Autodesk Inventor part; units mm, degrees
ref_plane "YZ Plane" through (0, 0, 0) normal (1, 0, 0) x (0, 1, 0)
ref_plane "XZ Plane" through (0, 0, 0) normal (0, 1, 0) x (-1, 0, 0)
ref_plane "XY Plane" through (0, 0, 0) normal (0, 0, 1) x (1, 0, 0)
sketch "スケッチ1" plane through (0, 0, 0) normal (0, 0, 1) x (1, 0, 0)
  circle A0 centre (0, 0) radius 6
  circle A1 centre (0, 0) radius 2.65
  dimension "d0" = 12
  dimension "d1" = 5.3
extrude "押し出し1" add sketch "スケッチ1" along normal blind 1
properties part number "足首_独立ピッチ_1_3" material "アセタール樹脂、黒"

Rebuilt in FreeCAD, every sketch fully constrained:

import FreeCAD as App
import Part
import Sketcher

V = App.Vector

doc = App.newDocument("Part")
body = doc.addObject("PartDesign::Body", "Body")

sketch1 = body.newObject("Sketcher::SketchObject", "Sketch")
sketch1.AttachmentSupport = (doc.getObject("XY_Plane"), [""])
sketch1.MapMode = "FlatFace"
sketch1.addGeometry(Part.Circle(V(0, 0, 0), V(0, 0, 1), 6), False)
sketch1.addGeometry(Part.Circle(V(0, 0, 0), V(0, 0, 1), 2.6), False)
sketch1.addConstraint(Sketcher.Constraint("Coincident", 0, 3, -1, 1))
sketch1.addConstraint(Sketcher.Constraint("Coincident", 1, 3, -1, 1))
sketch1.addConstraint(Sketcher.Constraint("Diameter", 0, 12.0))
sketch1.addConstraint(Sketcher.Constraint("Diameter", 1, 5.3))
pad1 = body.newObject("PartDesign::Pad", "Pad")
pad1.Profile = sketch1
pad1.Length = 1

doc.recompute()
